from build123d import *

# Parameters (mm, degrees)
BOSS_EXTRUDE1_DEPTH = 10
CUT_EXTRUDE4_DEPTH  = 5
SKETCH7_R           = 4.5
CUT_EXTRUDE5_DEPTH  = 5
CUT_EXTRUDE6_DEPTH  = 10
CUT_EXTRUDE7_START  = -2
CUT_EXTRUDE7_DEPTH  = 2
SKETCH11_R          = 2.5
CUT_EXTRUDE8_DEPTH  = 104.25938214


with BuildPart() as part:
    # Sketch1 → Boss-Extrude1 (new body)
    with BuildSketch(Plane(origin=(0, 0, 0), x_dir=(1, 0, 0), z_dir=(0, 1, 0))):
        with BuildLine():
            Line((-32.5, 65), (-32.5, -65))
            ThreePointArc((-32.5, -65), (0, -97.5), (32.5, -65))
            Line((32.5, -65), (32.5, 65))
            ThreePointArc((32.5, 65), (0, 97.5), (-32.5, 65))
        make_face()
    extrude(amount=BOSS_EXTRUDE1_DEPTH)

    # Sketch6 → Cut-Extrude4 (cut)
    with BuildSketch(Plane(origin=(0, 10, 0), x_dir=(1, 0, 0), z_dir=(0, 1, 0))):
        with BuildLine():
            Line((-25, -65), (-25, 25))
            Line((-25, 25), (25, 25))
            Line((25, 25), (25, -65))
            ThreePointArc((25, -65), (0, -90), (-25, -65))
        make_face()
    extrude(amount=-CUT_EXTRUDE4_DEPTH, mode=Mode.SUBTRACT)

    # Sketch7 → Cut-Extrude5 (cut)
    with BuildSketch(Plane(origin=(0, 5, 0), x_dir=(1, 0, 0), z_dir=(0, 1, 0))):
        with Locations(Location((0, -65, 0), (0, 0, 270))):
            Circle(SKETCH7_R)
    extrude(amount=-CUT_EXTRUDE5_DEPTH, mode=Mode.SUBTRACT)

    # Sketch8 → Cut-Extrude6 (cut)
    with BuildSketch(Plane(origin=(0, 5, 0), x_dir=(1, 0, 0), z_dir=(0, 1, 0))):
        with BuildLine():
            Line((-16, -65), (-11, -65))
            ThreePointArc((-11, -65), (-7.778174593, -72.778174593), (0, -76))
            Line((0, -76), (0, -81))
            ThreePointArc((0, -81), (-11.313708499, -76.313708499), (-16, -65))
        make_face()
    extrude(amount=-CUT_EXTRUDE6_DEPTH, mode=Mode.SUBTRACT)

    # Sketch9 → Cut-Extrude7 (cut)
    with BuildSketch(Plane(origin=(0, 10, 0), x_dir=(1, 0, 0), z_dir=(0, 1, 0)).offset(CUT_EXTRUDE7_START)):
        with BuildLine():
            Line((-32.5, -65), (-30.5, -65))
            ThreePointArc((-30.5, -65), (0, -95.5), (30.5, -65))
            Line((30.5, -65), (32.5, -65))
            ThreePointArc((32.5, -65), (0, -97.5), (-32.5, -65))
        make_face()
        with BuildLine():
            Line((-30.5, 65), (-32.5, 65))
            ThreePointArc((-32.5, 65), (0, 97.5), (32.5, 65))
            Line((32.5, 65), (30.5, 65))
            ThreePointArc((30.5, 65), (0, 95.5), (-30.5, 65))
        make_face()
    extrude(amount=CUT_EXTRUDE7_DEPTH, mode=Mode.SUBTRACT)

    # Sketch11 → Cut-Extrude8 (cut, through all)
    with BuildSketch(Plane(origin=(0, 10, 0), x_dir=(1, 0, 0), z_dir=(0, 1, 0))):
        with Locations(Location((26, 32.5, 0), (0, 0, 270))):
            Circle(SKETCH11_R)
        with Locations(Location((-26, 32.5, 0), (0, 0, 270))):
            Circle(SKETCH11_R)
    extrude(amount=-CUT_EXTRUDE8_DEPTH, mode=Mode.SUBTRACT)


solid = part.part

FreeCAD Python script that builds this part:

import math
import FreeCAD as App
import Part
import Sketcher

V = App.Vector

doc = App.newDocument("Part")
body = doc.addObject("PartDesign::Body", "Body")

# Sketch on XZ plane
sketch1 = body.newObject("Sketcher::SketchObject", "Sketch")
sketch1.AttachmentSupport = (doc.getObject("XZ_Plane"), [""])
sketch1.MapMode = "FlatFace"
sketch1.addGeometry(Part.LineSegment(V(-32, -65, 0), V(-32, 65, 0)), False)
sketch1.addGeometry(Part.ArcOfCircle(Part.Circle(V(0, 65, 0), V(0, 0, 1), 32), math.radians(0), math.radians(180)), False)
sketch1.addGeometry(Part.LineSegment(V(32, 65, 0), V(32, -65, 0)), False)
sketch1.addGeometry(Part.ArcOfCircle(Part.Circle(V(0, -65, 0), V(0, 0, 1), 32), math.radians(180), math.radians(360)), False)
sketch1.addConstraint(Sketcher.Constraint("Tangent", 0, 2, 1, 2))
sketch1.addConstraint(Sketcher.Constraint("Tangent", 1, 1, 2, 1))
sketch1.addConstraint(Sketcher.Constraint("Tangent", 2, 2, 3, 2))
sketch1.addConstraint(Sketcher.Constraint("Tangent", 3, 1, 0, 1))
sketch1.addConstraint(Sketcher.Constraint("Vertical", 0))
sketch1.addConstraint(Sketcher.Constraint("Vertical", 2))
sketch1.addConstraint(Sketcher.Constraint("Symmetric", 1, 3, 3, 3, -1, 1))
sketch1.addConstraint(Sketcher.Constraint("Radius", 1, 32.5))
sketch1.addConstraint(Sketcher.Constraint("DistanceY", 0, 1, 0, 2, 130.0))
pad1 = body.newObject("PartDesign::Pad", "Pad")
pad1.Profile = sketch1
pad1.Length = 10
pad1.Reversed = True

# Sketch on XZ plane
sketch2 = body.newObject("Sketcher::SketchObject", "Sketch001")
sketch2.AttachmentSupport = (doc.getObject("XZ_Plane"), [""])
sketch2.MapMode = "FlatFace"
sketch2.AttachmentOffset = App.Placement(V(0, 0, -10), App.Rotation())
sketch2.addGeometry(Part.LineSegment(V(-25, -25, 0), V(-25, 65, 0)), False)
sketch2.addGeometry(Part.ArcOfCircle(Part.Circle(V(0, 65, 0), V(0, 0, 1), 25), math.radians(0), math.radians(180)), False)
sketch2.addGeometry(Part.LineSegment(V(25, 65, 0), V(25, -25, 0)), False)
sketch2.addGeometry(Part.LineSegment(V(25, -25, 0), V(-25, -25, 0)), False)
sketch2.addConstraint(Sketcher.Constraint("Tangent", 0, 2, 1, 2))
sketch2.addConstraint(Sketcher.Constraint("Tangent", 1, 1, 2, 1))
sketch2.addConstraint(Sketcher.Constraint("Coincident", 2, 2, 3, 1))
sketch2.addConstraint(Sketcher.Constraint("Coincident", 3, 2, 0, 1))
sketch2.addConstraint(Sketcher.Constraint("Vertical", 0))
sketch2.addConstraint(Sketcher.Constraint("Vertical", 2))
sketch2.addConstraint(Sketcher.Constraint("Horizontal", 3))
sketch2.addConstraint(Sketcher.Constraint("PointOnObject", 1, 3, -2))
sketch2.addConstraint(Sketcher.Constraint("Radius", 1, 25.0))
sketch2.addConstraint(Sketcher.Constraint("DistanceY", 0, 1, 0, 2, 90.0))
sketch2.addConstraint(Sketcher.Constraint("DistanceY", -1, 1, 1, 3, 65.0))
pocket1 = body.newObject("PartDesign::Pocket", "Pocket")
pocket1.Profile = sketch2
pocket1.Length = 5
pocket1.Reversed = True

# Sketch on XZ plane
sketch3 = body.newObject("Sketcher::SketchObject", "Sketch002")
sketch3.AttachmentSupport = (doc.getObject("XZ_Plane"), [""])
sketch3.MapMode = "FlatFace"
sketch3.AttachmentOffset = App.Placement(V(0, 0, -5), App.Rotation())
sketch3.addGeometry(Part.Circle(V(0, 65, 0), V(0, 0, 1), 4.5), False)
sketch3.addConstraint(Sketcher.Constraint("PointOnObject", 0, 3, -2))
sketch3.addConstraint(Sketcher.Constraint("Diameter", 0, 9.0))
sketch3.addConstraint(Sketcher.Constraint("DistanceY", -1, 1, 0, 3, 65.0))
pocket2 = body.newObject("PartDesign::Pocket", "Pocket001")
pocket2.Profile = sketch3
pocket2.Length = 5
pocket2.Reversed = True

# Sketch on XZ plane
sketch4 = body.newObject("Sketcher::SketchObject", "Sketch003")
sketch4.AttachmentSupport = (doc.getObject("XZ_Plane"), [""])
sketch4.MapMode = "FlatFace"
sketch4.AttachmentOffset = App.Placement(V(0, 0, -5), App.Rotation())
sketch4.addGeometry(Part.LineSegment(V(-11, 65, 0), V(-16, 65, 0)), False)
sketch4.addGeometry(Part.ArcOfCircle(Part.Circle(V(0, 65, 0), V(0, 0, 1), 16), math.radians(90), math.radians(180)), False)
sketch4.addGeometry(Part.LineSegment(V(0, 81, 0), V(0, 76, 0)), False)
sketch4.addGeometry(Part.ArcOfCircle(Part.Circle(V(0, 65, 0), V(0, 0, 1), 11), math.radians(90), math.radians(180)), False)
sketch4.addConstraint(Sketcher.Constraint("Coincident", 0, 2, 1, 2))
sketch4.addConstraint(Sketcher.Constraint("Coincident", 1, 1, 2, 1))
sketch4.addConstraint(Sketcher.Constraint("Coincident", 2, 2, 3, 1))
sketch4.addConstraint(Sketcher.Constraint("Coincident", 3, 2, 0, 1))
sketch4.addConstraint(Sketcher.Constraint("Horizontal", 0))
sketch4.addConstraint(Sketcher.Constraint("Vertical", 2))
sketch4.addConstraint(Sketcher.Constraint("Coincident", 3, 3, 1, 3))
sketch4.addConstraint(Sketcher.Constraint("PointOnObject", 1, 3, -2))
sketch4.addConstraint(Sketcher.Constraint("PointOnObject", 1, 1, -2))
sketch4.addConstraint(Sketcher.Constraint("Horizontal", 3, 3, 0, 2))
sketch4.addConstraint(Sketcher.Constraint("Radius", 1, 16.0))
sketch4.addConstraint(Sketcher.Constraint("Radius", 3, 11.0))
sketch4.addConstraint(Sketcher.Constraint("DistanceY", -1, 1, 1, 3, 65.0))
pocket3 = body.newObject("PartDesign::Pocket", "Pocket002")
pocket3.Profile = sketch4
pocket3.Length = 10
pocket3.Reversed = True

# Sketch on XZ plane
sketch5 = body.newObject("Sketcher::SketchObject", "Sketch004")
sketch5.AttachmentSupport = (doc.getObject("XZ_Plane"), [""])
sketch5.MapMode = "FlatFace"
sketch5.AttachmentOffset = App.Placement(V(0, 0, -8), App.Rotation())
sketch5.addGeometry(Part.LineSegment(V(-30.5, 65, 0), V(-32.5, 65, 0)), False)
sketch5.addGeometry(Part.ArcOfCircle(Part.Circle(V(0, 65, 0), V(0, 0, 1), 32.5), math.radians(0), math.radians(180)), False)
sketch5.addGeometry(Part.LineSegment(V(32.5, 65, 0), V(30.5, 65, 0)), False)
sketch5.addGeometry(Part.ArcOfCircle(Part.Circle(V(0, 65, 0), V(0, 0, 1), 30.5), math.radians(0), math.radians(180)), False)
sketch5.addGeometry(Part.LineSegment(V(-32.5, -65, 0), V(-30.5, -65, 0)), False)
sketch5.addGeometry(Part.ArcOfCircle(Part.Circle(V(0, -65, 0), V(0, 0, 1), 30.5), math.radians(180), math.radians(360)), False)
sketch5.addGeometry(Part.LineSegment(V(30.5, -65, 0), V(32.5, -65, 0)), False)
sketch5.addGeometry(Part.ArcOfCircle(Part.Circle(V(0, -65, 0), V(0, 0, 1), 32.5), math.radians(180), math.radians(360)), False)
sketch5.addConstraint(Sketcher.Constraint("Coincident", 0, 2, 1, 2))
sketch5.addConstraint(Sketcher.Constraint("Coincident", 1, 1, 2, 1))
sketch5.addConstraint(Sketcher.Constraint("Coincident", 2, 2, 3, 1))
sketch5.addConstraint(Sketcher.Constraint("Coincident", 3, 2, 0, 1))
sketch5.addConstraint(Sketcher.Constraint("Coincident", 4, 2, 5, 1))
sketch5.addConstraint(Sketcher.Constraint("Coincident", 5, 2, 6, 1))
sketch5.addConstraint(Sketcher.Constraint("Coincident", 6, 2, 7, 2))
sketch5.addConstraint(Sketcher.Constraint("Coincident", 7, 1, 4, 1))
sketch5.addConstraint(Sketcher.Constraint("Horizontal", 0))
sketch5.addConstraint(Sketcher.Constraint("Horizontal", 2))
sketch5.addConstraint(Sketcher.Constraint("Horizontal", 4))
sketch5.addConstraint(Sketcher.Constraint("Horizontal", 6))
sketch5.addConstraint(Sketcher.Constraint("Coincident", 3, 3, 1, 3))
sketch5.addConstraint(Sketcher.Constraint("Coincident", 7, 3, 5, 3))
sketch5.addConstraint(Sketcher.Constraint("Equal", 3, 5))
sketch5.addConstraint(Sketcher.Constraint("Equal", 1, 7))
sketch5.addConstraint(Sketcher.Constraint("Symmetric", 1, 3, 5, 3, -1, 1))
sketch5.addConstraint(Sketcher.Constraint("Symmetric", 0, 2, 1, 1, -2))
sketch5.addConstraint(Sketcher.Constraint("Horizontal", 3, 3, 0, 2))
sketch5.addConstraint(Sketcher.Constraint("Horizontal", 7, 3, 4, 2))
sketch5.addConstraint(Sketcher.Constraint("Horizontal", 4, 2, 5, 2))
sketch5.addConstraint(Sketcher.Constraint("Radius", 1, 32.5))
sketch5.addConstraint(Sketcher.Constraint("Radius", 3, 30.5))
sketch5.addConstraint(Sketcher.Constraint("DistanceY", -1, 1, 1, 3, 65.0))
pocket4 = body.newObject("PartDesign::Pocket", "Pocket003")
pocket4.Profile = sketch5
pocket4.Length = 2

# Sketch on XZ plane
sketch6 = body.newObject("Sketcher::SketchObject", "Sketch005")
sketch6.AttachmentSupport = (doc.getObject("XZ_Plane"), [""])
sketch6.MapMode = "FlatFace"
sketch6.AttachmentOffset = App.Placement(V(0, 0, -10), App.Rotation())
sketch6.addGeometry(Part.Circle(V(26, -32.5, 0), V(0, 0, 1), 2.5), False)
sketch6.addGeometry(Part.Circle(V(-26, -32.5, 0), V(0, 0, 1), 2.5), False)
sketch6.addConstraint(Sketcher.Constraint("Equal", 0, 1))
sketch6.addConstraint(Sketcher.Constraint("Symmetric", 0, 3, 1, 3, -2))
sketch6.addConstraint(Sketcher.Constraint("Diameter", 0, 5.0))
sketch6.addConstraint(Sketcher.Constraint("DistanceX", -1, 1, 0, 3, 26.0))
sketch6.addConstraint(Sketcher.Constraint("DistanceY", 0, 3, -1, 1, 32.5))
pocket5 = body.newObject("PartDesign::Pocket", "Pocket004")
pocket5.Profile = sketch6
pocket5.Type = "ThroughAll"
pocket5.Reversed = True

doc.recompute()
